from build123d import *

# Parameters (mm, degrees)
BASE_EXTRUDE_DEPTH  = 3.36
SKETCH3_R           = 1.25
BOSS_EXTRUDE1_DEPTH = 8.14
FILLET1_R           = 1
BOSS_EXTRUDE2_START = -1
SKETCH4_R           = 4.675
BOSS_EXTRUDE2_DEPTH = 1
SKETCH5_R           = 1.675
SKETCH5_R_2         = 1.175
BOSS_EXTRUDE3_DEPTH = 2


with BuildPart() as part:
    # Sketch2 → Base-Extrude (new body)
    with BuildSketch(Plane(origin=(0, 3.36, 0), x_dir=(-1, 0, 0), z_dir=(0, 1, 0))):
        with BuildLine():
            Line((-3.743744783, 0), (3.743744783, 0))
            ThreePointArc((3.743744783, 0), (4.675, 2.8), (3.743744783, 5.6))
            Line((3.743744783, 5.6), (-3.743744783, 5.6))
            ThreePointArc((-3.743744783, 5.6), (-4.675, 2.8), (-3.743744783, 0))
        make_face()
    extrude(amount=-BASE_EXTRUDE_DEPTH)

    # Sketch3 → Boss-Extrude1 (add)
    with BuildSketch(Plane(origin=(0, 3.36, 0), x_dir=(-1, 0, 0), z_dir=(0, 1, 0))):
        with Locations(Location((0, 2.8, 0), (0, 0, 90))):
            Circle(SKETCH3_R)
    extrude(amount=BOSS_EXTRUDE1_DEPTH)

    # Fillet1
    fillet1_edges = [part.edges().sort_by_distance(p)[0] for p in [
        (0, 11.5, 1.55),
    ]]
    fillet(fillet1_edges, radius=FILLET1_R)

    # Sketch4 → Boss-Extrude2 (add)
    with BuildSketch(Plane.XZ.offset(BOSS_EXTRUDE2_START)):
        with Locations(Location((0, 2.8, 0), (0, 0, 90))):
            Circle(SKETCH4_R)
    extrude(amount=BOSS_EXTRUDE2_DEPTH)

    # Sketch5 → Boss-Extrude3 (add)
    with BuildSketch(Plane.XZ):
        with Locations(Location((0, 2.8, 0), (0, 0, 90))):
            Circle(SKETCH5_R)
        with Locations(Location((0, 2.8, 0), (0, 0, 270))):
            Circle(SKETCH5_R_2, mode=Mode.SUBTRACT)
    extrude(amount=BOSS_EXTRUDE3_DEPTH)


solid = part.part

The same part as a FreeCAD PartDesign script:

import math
import FreeCAD as App
import Part
import Sketcher
Q = App.Units.Quantity


def edges_at(feature, points):
    """Names of the edges that pass closest to the given points."""
    edges = feature.Shape.Edges
    near = lambda p: min(range(len(edges)), key=lambda i: edges[i].distToShape(Part.Vertex(*p))[0])
    return sorted({f"Edge{near(p) + 1}" for p in points})

doc = App.newDocument("Part")
params = doc.addObject("Spreadsheet::Sheet", "Params")
for row, (alias, value) in enumerate([
    ("pad1_length", "3.36 mm"),
    ("sketch2_diameter", "2.5 mm"),
    ("pad2_length", "8.14 mm"),
    ("fillet_radius", "1 mm"),
    ("sketch3_diameter", "9.35 mm"),
    ("pad3_length", "1 mm"),
    ("sketch4_diameter", "3.35 mm"),
    ("sketch4_diameter2", "2.35 mm"),
    ("pad4_length", "2 mm"),
], start=1):
    params.set(f"A{row}", alias)
    params.set(f"B{row}", "=" + value)
    params.setAlias(f"B{row}", alias)

body = doc.addObject("PartDesign::Body", "Body")

sketch1 = body.newObject("Sketcher::SketchObject", "Sketch")
sketch1.AttachmentSupport = (doc.getObject("XZ_Plane"), [""])
sketch1.MapMode = "FlatFace"
sketch1.AttachmentOffset = App.Placement(App.Vector(0, 0, -3.36), App.Rotation())
sketch1.addGeometry(Part.LineSegment(App.Vector(3.7, 0, 0), App.Vector(-3.7, 0, 0)), False)
sketch1.addGeometry(Part.ArcOfCircle(Part.Circle(App.Vector(0, 2.8, 0), App.Vector(0, 0, 1), 4.7), math.radians(143), math.radians(217)), False)
sketch1.addGeometry(Part.LineSegment(App.Vector(-3.7, 5.6, 0), App.Vector(3.7, 5.6, 0)), False)
sketch1.addGeometry(Part.ArcOfCircle(Part.Circle(App.Vector(0, 2.8, 0), App.Vector(0, 0, 1), 4.7), math.radians(-37), math.radians(37)), False)
sketch1.addConstraint(Sketcher.Constraint("Coincident", 0, 2, 1, 2))
sketch1.addConstraint(Sketcher.Constraint("Coincident", 1, 1, 2, 1))
sketch1.addConstraint(Sketcher.Constraint("Coincident", 2, 2, 3, 2))
sketch1.addConstraint(Sketcher.Constraint("Coincident", 3, 1, 0, 1))
sketch1.addConstraint(Sketcher.Constraint("Horizontal", 0))
sketch1.addConstraint(Sketcher.Constraint("Horizontal", 2))
sketch1.addConstraint(Sketcher.Constraint("Coincident", 3, 3, 1, 3))
sketch1.addConstraint(Sketcher.Constraint("Equal", 1, 3))
sketch1.addConstraint(Sketcher.Constraint("Symmetric", 0, 2, 3, 1, -1, 1))
sketch1.addConstraint(Sketcher.Constraint("Vertical", 0, 2, 1, 1))
sketch1.addConstraint(Sketcher.Constraint("Radius", 1, Q("4.675 mm")))
sketch1.addConstraint(Sketcher.Constraint("DistanceY", -1, 1, 1, 3, Q("2.8 mm")))
pad1 = body.newObject("PartDesign::Pad", "Pad")
pad1.Profile = sketch1
pad1.setExpression("Length", "Params.pad1_length")

sketch2 = body.newObject("Sketcher::SketchObject", "Sketch001")
sketch2.AttachmentSupport = (doc.getObject("XZ_Plane"), [""])
sketch2.MapMode = "FlatFace"
sketch2.AttachmentOffset = App.Placement(App.Vector(0, 0, -3.36), App.Rotation())
sketch2.addGeometry(Part.Circle(App.Vector(0, 2.8, 0), App.Vector(0, 0, 1), 1.2), False)
sketch2.addConstraint(Sketcher.Constraint("PointOnObject", 0, 3, -2))
sketch2.addConstraint(Sketcher.Constraint("Diameter", 0, Q("2.5 mm")))
sketch2.addConstraint(Sketcher.Constraint("DistanceY", -1, 1, 0, 3, Q("2.8 mm")))
sketch2.setExpression("Constraints[1]", "Params.sketch2_diameter")
pad2 = body.newObject("PartDesign::Pad", "Pad001")
pad2.Profile = sketch2
pad2.setExpression("Length", "Params.pad2_length")
pad2.Reversed = True
doc.recompute()

fillet = body.newObject("PartDesign::Fillet", "Fillet")
fillet.Base = (pad2, edges_at(pad2, [(0, 11.5, 1.55)]))
fillet.setExpression("Radius", "Params.fillet_radius")

sketch3 = body.newObject("Sketcher::SketchObject", "Sketch002")
sketch3.AttachmentSupport = (doc.getObject("XZ_Plane"), [""])
sketch3.MapMode = "FlatFace"
sketch3.AttachmentOffset = App.Placement(App.Vector(0, 0, -1), App.Rotation())
sketch3.addGeometry(Part.Circle(App.Vector(0, 2.8, 0), App.Vector(0, 0, 1), 4.7), False)
sketch3.addConstraint(Sketcher.Constraint("PointOnObject", 0, 3, -2))
sketch3.addConstraint(Sketcher.Constraint("Diameter", 0, Q("9.35 mm")))
sketch3.addConstraint(Sketcher.Constraint("DistanceY", -1, 1, 0, 3, Q("2.8 mm")))
sketch3.setExpression("Constraints[1]", "Params.sketch3_diameter")
pad3 = body.newObject("PartDesign::Pad", "Pad002")
pad3.Profile = sketch3
pad3.setExpression("Length", "Params.pad3_length")

sketch4 = body.newObject("Sketcher::SketchObject", "Sketch003")
sketch4.AttachmentSupport = (doc.getObject("XZ_Plane"), [""])
sketch4.MapMode = "FlatFace"
sketch4.addGeometry(Part.Circle(App.Vector(0, 2.8, 0), App.Vector(0, 0, 1), 1.7), False)
sketch4.addGeometry(Part.Circle(App.Vector(0, 2.8, 0), App.Vector(0, 0, 1), 1.2), False)
sketch4.addConstraint(Sketcher.Constraint("Coincident", 1, 3, 0, 3))
sketch4.addConstraint(Sketcher.Constraint("PointOnObject", 0, 3, -2))
sketch4.addConstraint(Sketcher.Constraint("Diameter", 0, Q("3.35 mm")))
sketch4.addConstraint(Sketcher.Constraint("Diameter", 1, Q("2.35 mm")))
sketch4.addConstraint(Sketcher.Constraint("DistanceY", -1, 1, 0, 3, Q("2.8 mm")))
sketch4.setExpression("Constraints[2]", "Params.sketch4_diameter")
sketch4.setExpression("Constraints[3]", "Params.sketch4_diameter2")
pad4 = body.newObject("PartDesign::Pad", "Pad003")
pad4.Profile = sketch4
pad4.setExpression("Length", "Params.pad4_length")

doc.recompute()
